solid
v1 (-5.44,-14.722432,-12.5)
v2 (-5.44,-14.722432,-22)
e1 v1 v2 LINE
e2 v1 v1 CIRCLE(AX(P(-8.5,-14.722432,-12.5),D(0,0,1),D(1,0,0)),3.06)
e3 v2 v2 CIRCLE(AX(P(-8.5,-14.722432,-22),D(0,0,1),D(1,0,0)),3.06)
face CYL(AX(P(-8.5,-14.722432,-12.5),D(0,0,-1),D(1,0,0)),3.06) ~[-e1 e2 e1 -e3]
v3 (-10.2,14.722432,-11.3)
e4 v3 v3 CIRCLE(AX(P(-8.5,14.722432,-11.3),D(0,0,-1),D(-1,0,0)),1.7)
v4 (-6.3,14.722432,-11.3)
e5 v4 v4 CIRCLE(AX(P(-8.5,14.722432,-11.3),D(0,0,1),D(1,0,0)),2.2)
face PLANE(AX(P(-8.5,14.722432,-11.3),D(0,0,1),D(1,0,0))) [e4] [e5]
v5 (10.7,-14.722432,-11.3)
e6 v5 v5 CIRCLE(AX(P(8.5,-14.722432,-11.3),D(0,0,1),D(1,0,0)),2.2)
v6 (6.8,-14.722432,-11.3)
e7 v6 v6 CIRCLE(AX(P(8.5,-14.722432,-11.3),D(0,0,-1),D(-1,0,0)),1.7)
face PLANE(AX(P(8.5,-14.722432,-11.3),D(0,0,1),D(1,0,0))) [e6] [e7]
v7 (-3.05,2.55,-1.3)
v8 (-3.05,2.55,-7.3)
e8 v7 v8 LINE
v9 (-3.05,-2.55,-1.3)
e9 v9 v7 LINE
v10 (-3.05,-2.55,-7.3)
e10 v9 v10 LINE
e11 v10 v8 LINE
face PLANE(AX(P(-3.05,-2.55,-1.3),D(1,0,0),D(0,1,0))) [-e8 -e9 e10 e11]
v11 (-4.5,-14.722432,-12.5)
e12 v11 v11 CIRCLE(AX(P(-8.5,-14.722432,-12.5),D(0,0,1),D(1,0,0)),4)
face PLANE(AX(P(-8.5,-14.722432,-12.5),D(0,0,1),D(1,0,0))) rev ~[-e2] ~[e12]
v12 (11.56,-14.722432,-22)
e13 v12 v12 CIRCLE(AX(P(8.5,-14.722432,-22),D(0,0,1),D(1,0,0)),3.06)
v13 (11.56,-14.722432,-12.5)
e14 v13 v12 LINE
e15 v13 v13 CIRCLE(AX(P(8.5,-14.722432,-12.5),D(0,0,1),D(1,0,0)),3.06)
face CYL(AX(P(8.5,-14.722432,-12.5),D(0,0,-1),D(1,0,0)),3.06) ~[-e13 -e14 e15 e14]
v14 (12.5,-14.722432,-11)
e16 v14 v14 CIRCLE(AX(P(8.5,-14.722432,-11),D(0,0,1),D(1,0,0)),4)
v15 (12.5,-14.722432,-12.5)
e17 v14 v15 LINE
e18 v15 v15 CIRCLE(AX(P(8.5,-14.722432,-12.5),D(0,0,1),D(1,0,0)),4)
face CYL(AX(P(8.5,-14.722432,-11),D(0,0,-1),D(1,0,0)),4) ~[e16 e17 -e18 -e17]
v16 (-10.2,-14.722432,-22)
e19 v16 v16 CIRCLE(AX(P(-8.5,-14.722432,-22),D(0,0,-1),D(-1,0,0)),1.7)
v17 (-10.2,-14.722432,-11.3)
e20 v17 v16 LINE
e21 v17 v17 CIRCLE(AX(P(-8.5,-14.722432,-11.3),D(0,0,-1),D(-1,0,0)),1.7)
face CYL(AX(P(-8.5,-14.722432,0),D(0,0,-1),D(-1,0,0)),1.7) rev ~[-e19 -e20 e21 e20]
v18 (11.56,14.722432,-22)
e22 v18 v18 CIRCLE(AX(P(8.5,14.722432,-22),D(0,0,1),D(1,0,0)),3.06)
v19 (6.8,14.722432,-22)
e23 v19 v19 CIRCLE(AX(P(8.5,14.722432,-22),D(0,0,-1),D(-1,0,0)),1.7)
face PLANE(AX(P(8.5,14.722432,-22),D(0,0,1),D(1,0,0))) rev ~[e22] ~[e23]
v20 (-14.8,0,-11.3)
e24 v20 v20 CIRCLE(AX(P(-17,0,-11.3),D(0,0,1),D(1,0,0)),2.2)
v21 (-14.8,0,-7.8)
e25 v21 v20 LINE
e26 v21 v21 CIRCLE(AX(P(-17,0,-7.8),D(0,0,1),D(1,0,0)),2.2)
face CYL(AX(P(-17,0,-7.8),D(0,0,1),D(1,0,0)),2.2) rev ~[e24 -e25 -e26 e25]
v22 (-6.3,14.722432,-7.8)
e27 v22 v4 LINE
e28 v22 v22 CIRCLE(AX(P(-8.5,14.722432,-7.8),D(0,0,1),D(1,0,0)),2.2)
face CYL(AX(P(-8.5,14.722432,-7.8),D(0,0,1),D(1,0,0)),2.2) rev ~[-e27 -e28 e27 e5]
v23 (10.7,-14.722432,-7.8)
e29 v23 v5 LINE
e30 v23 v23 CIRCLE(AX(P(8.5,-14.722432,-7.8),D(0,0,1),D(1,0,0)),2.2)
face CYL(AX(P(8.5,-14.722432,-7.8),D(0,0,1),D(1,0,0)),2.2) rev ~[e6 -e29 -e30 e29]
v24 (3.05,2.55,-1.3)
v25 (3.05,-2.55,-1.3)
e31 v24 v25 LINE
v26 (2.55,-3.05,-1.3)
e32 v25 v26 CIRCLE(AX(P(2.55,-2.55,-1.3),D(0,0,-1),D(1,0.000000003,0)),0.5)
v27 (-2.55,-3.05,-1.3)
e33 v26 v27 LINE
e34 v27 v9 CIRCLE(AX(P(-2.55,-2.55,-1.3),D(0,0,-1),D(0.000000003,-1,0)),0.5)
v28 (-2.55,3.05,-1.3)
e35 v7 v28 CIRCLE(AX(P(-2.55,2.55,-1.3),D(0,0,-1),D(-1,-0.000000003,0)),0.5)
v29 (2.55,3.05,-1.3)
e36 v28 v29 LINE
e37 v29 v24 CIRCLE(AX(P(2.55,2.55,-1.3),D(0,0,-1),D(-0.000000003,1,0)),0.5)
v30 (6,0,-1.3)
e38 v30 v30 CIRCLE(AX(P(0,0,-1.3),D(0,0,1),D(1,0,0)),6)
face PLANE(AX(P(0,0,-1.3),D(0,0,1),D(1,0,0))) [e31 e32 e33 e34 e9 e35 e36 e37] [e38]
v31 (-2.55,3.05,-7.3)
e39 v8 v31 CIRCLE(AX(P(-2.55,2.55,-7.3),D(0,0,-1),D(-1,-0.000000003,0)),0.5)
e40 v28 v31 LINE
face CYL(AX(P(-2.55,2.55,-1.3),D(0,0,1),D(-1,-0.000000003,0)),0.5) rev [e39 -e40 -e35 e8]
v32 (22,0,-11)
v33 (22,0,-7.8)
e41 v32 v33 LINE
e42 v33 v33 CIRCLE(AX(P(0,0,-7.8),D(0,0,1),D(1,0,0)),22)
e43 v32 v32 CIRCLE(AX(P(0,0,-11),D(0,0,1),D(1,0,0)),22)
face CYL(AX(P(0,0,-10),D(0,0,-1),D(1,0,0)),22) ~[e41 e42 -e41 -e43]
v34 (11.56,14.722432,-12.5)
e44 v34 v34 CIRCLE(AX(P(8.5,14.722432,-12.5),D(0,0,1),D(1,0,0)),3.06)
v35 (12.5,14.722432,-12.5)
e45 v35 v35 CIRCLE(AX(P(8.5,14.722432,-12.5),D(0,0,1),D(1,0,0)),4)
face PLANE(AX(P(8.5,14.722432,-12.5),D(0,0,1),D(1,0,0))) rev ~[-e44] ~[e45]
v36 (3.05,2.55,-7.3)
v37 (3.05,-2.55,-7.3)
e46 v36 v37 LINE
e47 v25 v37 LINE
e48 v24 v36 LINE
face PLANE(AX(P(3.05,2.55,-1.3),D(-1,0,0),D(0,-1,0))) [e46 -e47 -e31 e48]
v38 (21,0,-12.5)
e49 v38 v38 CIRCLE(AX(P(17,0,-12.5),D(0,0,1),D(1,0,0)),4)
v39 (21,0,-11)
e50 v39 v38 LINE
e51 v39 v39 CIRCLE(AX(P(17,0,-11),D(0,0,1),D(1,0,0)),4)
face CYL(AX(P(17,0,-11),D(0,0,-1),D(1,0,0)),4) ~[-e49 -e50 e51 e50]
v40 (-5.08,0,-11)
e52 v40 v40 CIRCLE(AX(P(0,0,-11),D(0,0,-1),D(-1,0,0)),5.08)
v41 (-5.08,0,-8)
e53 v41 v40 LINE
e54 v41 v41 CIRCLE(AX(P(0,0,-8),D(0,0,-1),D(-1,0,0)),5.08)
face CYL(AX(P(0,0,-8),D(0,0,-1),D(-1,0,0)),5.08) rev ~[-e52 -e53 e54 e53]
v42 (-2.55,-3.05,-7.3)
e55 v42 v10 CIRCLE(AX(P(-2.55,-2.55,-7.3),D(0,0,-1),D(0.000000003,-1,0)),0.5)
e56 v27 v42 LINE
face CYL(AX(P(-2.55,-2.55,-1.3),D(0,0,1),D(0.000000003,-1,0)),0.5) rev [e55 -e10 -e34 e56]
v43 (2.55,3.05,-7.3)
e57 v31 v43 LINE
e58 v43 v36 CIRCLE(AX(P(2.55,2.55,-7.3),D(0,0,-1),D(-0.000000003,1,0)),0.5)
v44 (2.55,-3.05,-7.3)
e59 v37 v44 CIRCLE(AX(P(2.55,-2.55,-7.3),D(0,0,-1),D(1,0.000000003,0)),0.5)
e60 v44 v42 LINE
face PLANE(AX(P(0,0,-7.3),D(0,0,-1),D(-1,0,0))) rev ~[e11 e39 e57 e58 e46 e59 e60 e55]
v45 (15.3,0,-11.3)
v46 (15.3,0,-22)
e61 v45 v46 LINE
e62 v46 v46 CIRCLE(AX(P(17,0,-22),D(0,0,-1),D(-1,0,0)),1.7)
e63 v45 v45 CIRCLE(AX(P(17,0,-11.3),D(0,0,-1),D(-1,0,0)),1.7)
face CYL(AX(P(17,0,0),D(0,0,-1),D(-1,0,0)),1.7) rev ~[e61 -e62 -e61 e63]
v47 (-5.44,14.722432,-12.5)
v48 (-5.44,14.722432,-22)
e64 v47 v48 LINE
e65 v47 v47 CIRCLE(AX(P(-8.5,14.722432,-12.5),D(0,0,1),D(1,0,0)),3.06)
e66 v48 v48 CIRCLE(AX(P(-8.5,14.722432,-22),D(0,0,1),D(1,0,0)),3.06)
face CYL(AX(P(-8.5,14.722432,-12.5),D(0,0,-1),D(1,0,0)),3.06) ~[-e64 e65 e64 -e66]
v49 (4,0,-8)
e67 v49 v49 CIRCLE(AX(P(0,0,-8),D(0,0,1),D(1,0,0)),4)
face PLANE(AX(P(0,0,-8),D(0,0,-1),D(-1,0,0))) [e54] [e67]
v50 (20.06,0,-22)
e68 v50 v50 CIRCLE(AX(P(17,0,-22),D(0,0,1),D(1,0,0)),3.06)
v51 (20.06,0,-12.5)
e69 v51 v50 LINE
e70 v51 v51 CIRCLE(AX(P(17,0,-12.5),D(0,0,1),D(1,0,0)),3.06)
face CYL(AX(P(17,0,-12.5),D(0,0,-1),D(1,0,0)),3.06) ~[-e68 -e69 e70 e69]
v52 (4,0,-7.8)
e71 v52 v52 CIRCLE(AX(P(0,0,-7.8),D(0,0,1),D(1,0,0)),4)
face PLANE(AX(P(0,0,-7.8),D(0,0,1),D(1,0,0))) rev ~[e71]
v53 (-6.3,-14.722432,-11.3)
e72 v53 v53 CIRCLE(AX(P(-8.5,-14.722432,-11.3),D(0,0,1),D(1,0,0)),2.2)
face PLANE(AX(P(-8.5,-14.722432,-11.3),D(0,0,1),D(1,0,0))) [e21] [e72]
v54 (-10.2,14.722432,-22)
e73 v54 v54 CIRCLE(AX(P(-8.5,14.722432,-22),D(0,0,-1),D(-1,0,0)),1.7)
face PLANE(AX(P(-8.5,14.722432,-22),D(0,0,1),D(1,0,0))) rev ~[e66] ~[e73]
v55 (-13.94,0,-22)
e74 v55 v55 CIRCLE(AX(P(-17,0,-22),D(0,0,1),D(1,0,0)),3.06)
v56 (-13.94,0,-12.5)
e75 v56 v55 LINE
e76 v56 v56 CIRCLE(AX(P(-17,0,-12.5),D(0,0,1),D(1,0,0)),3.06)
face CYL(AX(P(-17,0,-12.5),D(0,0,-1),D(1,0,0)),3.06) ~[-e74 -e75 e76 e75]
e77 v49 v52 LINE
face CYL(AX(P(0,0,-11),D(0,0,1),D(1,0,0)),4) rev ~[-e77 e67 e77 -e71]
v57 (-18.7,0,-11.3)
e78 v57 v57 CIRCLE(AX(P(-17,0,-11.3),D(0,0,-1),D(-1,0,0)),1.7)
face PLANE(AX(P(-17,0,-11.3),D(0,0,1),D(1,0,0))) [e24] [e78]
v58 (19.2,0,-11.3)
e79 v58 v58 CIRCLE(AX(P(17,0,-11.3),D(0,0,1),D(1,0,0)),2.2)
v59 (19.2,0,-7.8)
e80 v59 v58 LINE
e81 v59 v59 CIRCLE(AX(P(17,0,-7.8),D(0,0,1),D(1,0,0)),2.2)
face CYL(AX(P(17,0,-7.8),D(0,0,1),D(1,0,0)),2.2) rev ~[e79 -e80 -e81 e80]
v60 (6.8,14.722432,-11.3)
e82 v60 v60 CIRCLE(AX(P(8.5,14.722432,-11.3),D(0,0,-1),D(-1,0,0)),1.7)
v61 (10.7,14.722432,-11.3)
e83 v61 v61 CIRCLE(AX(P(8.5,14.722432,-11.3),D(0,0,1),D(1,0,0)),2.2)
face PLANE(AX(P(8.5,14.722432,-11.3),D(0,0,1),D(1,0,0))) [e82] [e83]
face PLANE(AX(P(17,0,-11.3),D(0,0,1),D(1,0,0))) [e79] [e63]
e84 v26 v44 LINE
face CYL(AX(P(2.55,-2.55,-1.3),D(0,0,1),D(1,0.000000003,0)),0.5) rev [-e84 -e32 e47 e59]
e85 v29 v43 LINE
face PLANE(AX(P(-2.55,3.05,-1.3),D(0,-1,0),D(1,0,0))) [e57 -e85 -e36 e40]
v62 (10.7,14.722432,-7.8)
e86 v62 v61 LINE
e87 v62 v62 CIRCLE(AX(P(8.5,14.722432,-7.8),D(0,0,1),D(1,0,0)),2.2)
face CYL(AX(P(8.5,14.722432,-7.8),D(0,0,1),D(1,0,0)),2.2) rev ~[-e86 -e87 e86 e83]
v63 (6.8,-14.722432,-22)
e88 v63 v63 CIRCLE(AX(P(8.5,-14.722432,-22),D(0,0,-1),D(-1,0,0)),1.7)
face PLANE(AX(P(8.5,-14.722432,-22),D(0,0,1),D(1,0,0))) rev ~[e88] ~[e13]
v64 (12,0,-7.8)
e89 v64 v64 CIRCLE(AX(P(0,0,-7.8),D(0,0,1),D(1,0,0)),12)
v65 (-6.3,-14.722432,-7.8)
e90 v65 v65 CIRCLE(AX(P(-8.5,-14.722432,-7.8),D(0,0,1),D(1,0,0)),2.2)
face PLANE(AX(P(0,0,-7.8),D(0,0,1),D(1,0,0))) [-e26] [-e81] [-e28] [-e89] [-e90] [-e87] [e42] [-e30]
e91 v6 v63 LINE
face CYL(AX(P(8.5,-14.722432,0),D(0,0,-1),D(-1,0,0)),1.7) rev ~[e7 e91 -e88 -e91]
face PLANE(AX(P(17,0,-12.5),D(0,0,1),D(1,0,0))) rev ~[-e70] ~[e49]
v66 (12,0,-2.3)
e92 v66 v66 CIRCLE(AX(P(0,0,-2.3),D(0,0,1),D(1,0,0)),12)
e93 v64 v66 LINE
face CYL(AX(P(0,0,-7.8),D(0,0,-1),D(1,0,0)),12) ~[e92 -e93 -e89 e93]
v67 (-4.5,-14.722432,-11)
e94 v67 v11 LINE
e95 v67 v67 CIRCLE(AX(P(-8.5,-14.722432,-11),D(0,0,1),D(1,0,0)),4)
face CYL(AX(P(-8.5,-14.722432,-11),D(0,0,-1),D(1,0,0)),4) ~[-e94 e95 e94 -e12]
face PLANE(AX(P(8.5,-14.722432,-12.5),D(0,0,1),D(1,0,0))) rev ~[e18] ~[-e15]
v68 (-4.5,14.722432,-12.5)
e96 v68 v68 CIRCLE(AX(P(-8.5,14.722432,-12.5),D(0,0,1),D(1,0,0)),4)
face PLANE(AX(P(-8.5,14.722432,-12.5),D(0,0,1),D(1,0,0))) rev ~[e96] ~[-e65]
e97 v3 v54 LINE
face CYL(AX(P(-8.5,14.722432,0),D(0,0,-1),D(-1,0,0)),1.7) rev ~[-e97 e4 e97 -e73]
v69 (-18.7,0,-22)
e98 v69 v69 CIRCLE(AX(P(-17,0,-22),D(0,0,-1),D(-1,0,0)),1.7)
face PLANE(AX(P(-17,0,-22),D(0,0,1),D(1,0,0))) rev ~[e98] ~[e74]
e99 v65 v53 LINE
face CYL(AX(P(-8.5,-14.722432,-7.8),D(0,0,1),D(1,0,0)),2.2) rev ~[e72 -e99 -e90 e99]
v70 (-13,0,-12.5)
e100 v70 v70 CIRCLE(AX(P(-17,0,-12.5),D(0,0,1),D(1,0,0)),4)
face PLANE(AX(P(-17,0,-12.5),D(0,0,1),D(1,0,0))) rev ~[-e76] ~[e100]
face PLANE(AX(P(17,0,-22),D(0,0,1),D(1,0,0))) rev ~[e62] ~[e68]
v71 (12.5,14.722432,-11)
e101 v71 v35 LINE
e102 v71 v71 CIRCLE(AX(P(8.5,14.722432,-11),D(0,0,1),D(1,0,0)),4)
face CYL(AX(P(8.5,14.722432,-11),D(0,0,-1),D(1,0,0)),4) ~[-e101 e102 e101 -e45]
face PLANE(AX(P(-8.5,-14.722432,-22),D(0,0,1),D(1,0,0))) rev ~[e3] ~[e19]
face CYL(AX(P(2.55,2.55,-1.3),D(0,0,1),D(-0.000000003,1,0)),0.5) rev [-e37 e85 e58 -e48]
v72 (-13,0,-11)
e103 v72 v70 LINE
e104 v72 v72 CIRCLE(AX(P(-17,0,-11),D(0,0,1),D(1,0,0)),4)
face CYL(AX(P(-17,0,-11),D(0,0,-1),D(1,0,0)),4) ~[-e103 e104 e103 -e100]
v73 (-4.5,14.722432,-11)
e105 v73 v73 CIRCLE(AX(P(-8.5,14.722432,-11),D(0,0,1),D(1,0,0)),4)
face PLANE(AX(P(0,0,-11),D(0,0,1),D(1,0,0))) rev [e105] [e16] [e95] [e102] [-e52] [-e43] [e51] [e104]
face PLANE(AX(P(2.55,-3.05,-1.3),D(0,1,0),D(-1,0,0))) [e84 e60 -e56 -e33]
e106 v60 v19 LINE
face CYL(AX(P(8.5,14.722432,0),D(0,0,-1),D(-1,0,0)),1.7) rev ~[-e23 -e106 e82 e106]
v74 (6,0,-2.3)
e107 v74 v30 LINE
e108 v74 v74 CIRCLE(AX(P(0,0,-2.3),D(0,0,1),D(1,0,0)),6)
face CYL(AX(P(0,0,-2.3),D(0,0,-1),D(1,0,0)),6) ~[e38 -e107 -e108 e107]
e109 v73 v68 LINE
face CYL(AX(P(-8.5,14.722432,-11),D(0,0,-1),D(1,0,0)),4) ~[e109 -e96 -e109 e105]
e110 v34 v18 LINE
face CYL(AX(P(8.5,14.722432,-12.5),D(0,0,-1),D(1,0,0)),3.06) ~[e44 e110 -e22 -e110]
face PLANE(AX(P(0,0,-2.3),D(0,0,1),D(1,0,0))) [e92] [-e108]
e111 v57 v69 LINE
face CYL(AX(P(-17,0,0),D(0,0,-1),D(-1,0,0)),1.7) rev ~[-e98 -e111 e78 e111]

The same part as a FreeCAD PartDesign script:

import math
import FreeCAD as App
import Part
import Sketcher

V = App.Vector


def add_polygon(sketch, points):
    """Adds a closed chain of lines whose ends are joined by coincident constraints."""
    first, n = sketch.GeometryCount, len(points)
    for a, b in zip(points, points[1:] + points[:1]):
        sketch.addGeometry(Part.LineSegment(App.Vector(*a, 0), App.Vector(*b, 0)), False)
    for i in range(n):
        sketch.addConstraint(Sketcher.Constraint("Coincident", first + i, 2, first + (i + 1) % n, 1))

doc = App.newDocument("Part")
params = doc.addObject("Spreadsheet::Sheet", "Params")
for row, (alias, value) in enumerate([
    ("sketch1_width", "22 mm"),
    ("sketch1_height", "1 mm"),
    ("revolution_angle", "360 deg"),
    ("sketch2_diameter", "44 mm"),
    ("pad1_length", "10 mm"),
    ("sketch3_width", "4 mm"),
    ("sketch3_height", "11 mm"),
    ("sketch3_height2", "1.5 mm"),
    ("sketch3_width2", "3.06 mm"),
    ("revolution2_angle", "360 deg"),
    ("sketch4_width", "4 mm"),
    ("sketch4_height", "11 mm"),
    ("sketch4_height2", "1.5 mm"),
    ("sketch4_width2", "3.06 mm"),
    ("revolution3_angle", "360 deg"),
    ("sketch5_width", "4 mm"),
    ("sketch5_height", "11 mm"),
    ("sketch5_height2", "1.5 mm"),
    ("sketch5_width2", "3.06 mm"),
    ("revolution4_angle", "360 deg"),
    ("sketch6_width", "4 mm"),
    ("sketch6_height", "11 mm"),
    ("sketch6_height2", "1.5 mm"),
    ("sketch6_width2", "3.06 mm"),
    ("revolution5_angle", "360 deg"),
    ("sketch7_width", "4 mm"),
    ("sketch7_height", "11 mm"),
    ("sketch7_height2", "1.5 mm"),
    ("sketch7_width2", "3.06 mm"),
    ("revolution6_angle", "360 deg"),
    ("sketch8_width", "4 mm"),
    ("sketch8_height", "11 mm"),
    ("sketch8_height2", "1.5 mm"),
    ("sketch8_width2", "3.06 mm"),
    ("revolution7_angle", "360 deg"),
    ("sketch9_diameter", "3.4 mm"),
    ("hole_diameter", "3.4 mm"),
    ("hole_depth", "11 mm"),
    ("hole_cbore_diameter", "4.5 mm"),
    ("hole_cbore_depth", "6 mm"),
    ("sketch10_diameter", "8 mm"),
    ("hole2_diameter", "8 mm"),
    ("hole2_depth", "5 mm"),
    ("hole2_cbore_diameter", "10.16 mm"),
    ("hole2_cbore_depth", "3 mm"),
    ("sketch11_diameter", "3.4 mm"),
    ("hole3_diameter", "3.4 mm"),
    ("hole3_depth", "22 mm"),
    ("hole3_cbore_diameter", "6.1 mm"),
    ("hole3_cbore_depth", "3 mm"),
    ("sketch12_diameter", "4.8 mm"),
    ("pad2_length", "11 mm"),
    ("sketch13_diameter", "44 mm"),
    ("pocket1_length", "7.8 mm"),
    ("sketch14_diameter", "24 mm"),
    ("pad3_length", "5.5 mm"),
    ("sketch15_diameter", "12 mm"),
    ("pad4_length", "1 mm"),
    ("sketch16_radius", "0.5 mm"),
    ("sketch16_width", "5.1 mm"),
    ("pocket2_length", "6 mm"),
    ("sketch17_diameter", "4.4 mm"),
    ("pocket3_length", "3.5 mm"),
], start=1):
    params.set(f"A{row}", alias)
    params.set(f"B{row}", "=" + value)
    params.setAlias(f"B{row}", alias)

body = doc.addObject("PartDesign::Body", "Body")

sketch1 = body.newObject("Sketcher::SketchObject", "Sketch")
sketch1.AttachmentSupport = (doc.getObject("XZ_Plane"), [""])
sketch1.MapMode = "FlatFace"
add_polygon(sketch1, [(0, -11), (0, -10), (22, -10), (22, -11)])
sketch1.addConstraint(Sketcher.Constraint("Vertical", 0))
sketch1.addConstraint(Sketcher.Constraint("Horizontal", 1))
sketch1.addConstraint(Sketcher.Constraint("Vertical", 2))
sketch1.addConstraint(Sketcher.Constraint("Horizontal", 3))
sketch1.addConstraint(Sketcher.Constraint("PointOnObject", 0, 2, -2))
sketch1.addConstraint(Sketcher.Constraint("DistanceX", 1, 1, 1, 2, 22.0))
sketch1.addConstraint(Sketcher.Constraint("DistanceY", 0, 1, 0, 2, 1.0))
sketch1.addConstraint(Sketcher.Constraint("DistanceY", 0, 2, -1, 1, 10.0))
sketch1.setExpression("Constraints[9]", "Params.sketch1_width")
sketch1.setExpression("Constraints[10]", "Params.sketch1_height")
revolution = body.newObject("PartDesign::Revolution", "Revolution")
revolution.Profile = sketch1
revolution.ReferenceAxis = (sketch1, ["V_Axis"])
revolution.setExpression("Angle", "Params.revolution_angle")

sketch2 = body.newObject("Sketcher::SketchObject", "Sketch001")
sketch2.AttachmentSupport = (doc.getObject("XY_Plane"), [""])
sketch2.MapMode = "FlatFace"
sketch2.AttachmentOffset = App.Placement(V(0, 0, -10), App.Rotation())
sketch2.addGeometry(Part.Circle(V(0, 0, 0), V(0, 0, 1), 22), False)
sketch2.addConstraint(Sketcher.Constraint("Coincident", 0, 3, -1, 1))
sketch2.addConstraint(Sketcher.Constraint("Diameter", 0, 44.0))
sketch2.setExpression("Constraints[1]", "Params.sketch2_diameter")
pad1 = body.newObject("PartDesign::Pad", "Pad")
pad1.Profile = sketch2
pad1.setExpression("Length", "Params.pad1_length")

sketch3 = body.newObject("Sketcher::SketchObject", "Sketch002")
sketch3.AttachmentSupport = (doc.getObject("XZ_Plane"), [""])
sketch3.MapMode = "FlatFace"
sketch3.AttachmentOffset = App.Placement(V(0, 0, 14.722432), App.Rotation())
add_polygon(sketch3, [(11.6, -22), (8.5, -22), (8.5, -11), (12.5, -11), (12.5, -12.5), (11.6, -12.5)])
sketch3.addGeometry(Part.LineSegment(V(8.5, -22, 0), V(8.5, -11, 0)), True)
sketch3.addConstraint(Sketcher.Constraint("Horizontal", 0))
sketch3.addConstraint(Sketcher.Constraint("Vertical", 1))
sketch3.addConstraint(Sketcher.Constraint("Horizontal", 2))
sketch3.addConstraint(Sketcher.Constraint("Vertical", 3))
sketch3.addConstraint(Sketcher.Constraint("Horizontal", 4))
sketch3.addConstraint(Sketcher.Constraint("Vertical", 5))
sketch3.addConstraint(Sketcher.Constraint("Vertical", 6))
sketch3.addConstraint(Sketcher.Constraint("Coincident", 6, 1, 0, 2))
sketch3.addConstraint(Sketcher.Constraint("Horizontal", 2, 2, 6, 2))
sketch3.addConstraint(Sketcher.Constraint("DistanceX", 2, 1, 2, 2, 4.0))
sketch3.addConstraint(Sketcher.Constraint("DistanceY", 1, 1, 1, 2, 11.0))
sketch3.addConstraint(Sketcher.Constraint("DistanceY", 3, 2, 3, 1, 1.5))
sketch3.addConstraint(Sketcher.Constraint("DistanceY", 0, 2, -1, 1, 22.0))
sketch3.addConstraint(Sketcher.Constraint("DistanceX", 0, 2, 0, 1, 3.06))
sketch3.addConstraint(Sketcher.Constraint("DistanceX", -1, 1, 0, 2, 8.5))
sketch3.setExpression("Constraints[15]", "Params.sketch3_width")
sketch3.setExpression("Constraints[16]", "Params.sketch3_height")
sketch3.setExpression("Constraints[17]", "Params.sketch3_height2")
sketch3.setExpression("Constraints[19]", "Params.sketch3_width2")
revolution2 = body.newObject("PartDesign::Revolution", "Revolution001")
revolution2.Profile = sketch3
revolution2.ReferenceAxis = (sketch3, ["Axis0"])
revolution2.setExpression("Angle", "Params.revolution2_angle")

sketch4 = body.newObject("Sketcher::SketchObject", "Sketch003")
sketch4.AttachmentSupport = (doc.getObject("XZ_Plane"), [""])
sketch4.MapMode = "FlatFace"
sketch4.AttachmentOffset = App.Placement(V(0, 0, 14.722432), App.Rotation())
add_polygon(sketch4, [(-5.4, -22), (-8.5, -22), (-8.5, -11), (-4.5, -11), (-4.5, -12.5), (-5.4, -12.5)])
sketch4.addGeometry(Part.LineSegment(V(-8.5, -22, 0), V(-8.5, -11, 0)), True)
sketch4.addConstraint(Sketcher.Constraint("Horizontal", 0))
sketch4.addConstraint(Sketcher.Constraint("Vertical", 1))
sketch4.addConstraint(Sketcher.Constraint("Horizontal", 2))
sketch4.addConstraint(Sketcher.Constraint("Vertical", 3))
sketch4.addConstraint(Sketcher.Constraint("Horizontal", 4))
sketch4.addConstraint(Sketcher.Constraint("Vertical", 5))
sketch4.addConstraint(Sketcher.Constraint("Vertical", 6))
sketch4.addConstraint(Sketcher.Constraint("Coincident", 6, 1, 0, 2))
sketch4.addConstraint(Sketcher.Constraint("Horizontal", 2, 2, 6, 2))
sketch4.addConstraint(Sketcher.Constraint("DistanceX", 2, 1, 2, 2, 4.0))
sketch4.addConstraint(Sketcher.Constraint("DistanceY", 1, 1, 1, 2, 11.0))
sketch4.addConstraint(Sketcher.Constraint("DistanceY", 3, 2, 3, 1, 1.5))
sketch4.addConstraint(Sketcher.Constraint("DistanceY", 0, 2, -1, 1, 22.0))
sketch4.addConstraint(Sketcher.Constraint("DistanceX", 0, 2, 0, 1, 3.06))
sketch4.addConstraint(Sketcher.Constraint("DistanceX", 0, 2, -1, 1, 8.5))
sketch4.setExpression("Constraints[15]", "Params.sketch4_width")
sketch4.setExpression("Constraints[16]", "Params.sketch4_height")
sketch4.setExpression("Constraints[17]", "Params.sketch4_height2")
sketch4.setExpression("Constraints[19]", "Params.sketch4_width2")
revolution3 = body.newObject("PartDesign::Revolution", "Revolution002")
revolution3.Profile = sketch4
revolution3.ReferenceAxis = (sketch4, ["Axis0"])
revolution3.setExpression("Angle", "Params.revolution3_angle")

sketch5 = body.newObject("Sketcher::SketchObject", "Sketch004")
sketch5.AttachmentSupport = (doc.getObject("XZ_Plane"), [""])
sketch5.MapMode = "FlatFace"
add_polygon(sketch5, [(-13.9, -22), (-17, -22), (-17, -11), (-13, -11), (-13, -12.5), (-13.9, -12.5)])
sketch5.addGeometry(Part.LineSegment(V(-17, -22, 0), V(-17, -11, 0)), True)
sketch5.addConstraint(Sketcher.Constraint("Horizontal", 0))
sketch5.addConstraint(Sketcher.Constraint("Vertical", 1))
sketch5.addConstraint(Sketcher.Constraint("Horizontal", 2))
sketch5.addConstraint(Sketcher.Constraint("Vertical", 3))
sketch5.addConstraint(Sketcher.Constraint("Horizontal", 4))
sketch5.addConstraint(Sketcher.Constraint("Vertical", 5))
sketch5.addConstraint(Sketcher.Constraint("Vertical", 6))
sketch5.addConstraint(Sketcher.Constraint("Coincident", 6, 1, 0, 2))
sketch5.addConstraint(Sketcher.Constraint("Horizontal", 2, 2, 6, 2))
sketch5.addConstraint(Sketcher.Constraint("DistanceX", 2, 1, 2, 2, 4.0))
sketch5.addConstraint(Sketcher.Constraint("DistanceY", 1, 1, 1, 2, 11.0))
sketch5.addConstraint(Sketcher.Constraint("DistanceY", 3, 2, 3, 1, 1.5))
sketch5.addConstraint(Sketcher.Constraint("DistanceX", 0, 2, -1, 1, 17.0))
sketch5.addConstraint(Sketcher.Constraint("DistanceY", 0, 2, -1, 1, 22.0))
sketch5.addConstraint(Sketcher.Constraint("DistanceX", 0, 2, 0, 1, 3.06))
sketch5.setExpression("Constraints[15]", "Params.sketch5_width")
sketch5.setExpression("Constraints[16]", "Params.sketch5_height")
sketch5.setExpression("Constraints[17]", "Params.sketch5_height2")
sketch5.setExpression("Constraints[20]", "Params.sketch5_width2")
revolution4 = body.newObject("PartDesign::Revolution", "Revolution003")
revolution4.Profile = sketch5
revolution4.ReferenceAxis = (sketch5, ["Axis0"])
revolution4.setExpression("Angle", "Params.revolution4_angle")

sketch6 = body.newObject("Sketcher::SketchObject", "Sketch005")
sketch6.AttachmentSupport = (doc.getObject("XZ_Plane"), [""])
sketch6.MapMode = "FlatFace"
sketch6.AttachmentOffset = App.Placement(V(0, 0, -14.722432), App.Rotation())
add_polygon(sketch6, [(-5.4, -22), (-8.5, -22), (-8.5, -11), (-4.5, -11), (-4.5, -12.5), (-5.4, -12.5)])
sketch6.addGeometry(Part.LineSegment(V(-8.5, -22, 0), V(-8.5, -11, 0)), True)
sketch6.addConstraint(Sketcher.Constraint("Horizontal", 0))
sketch6.addConstraint(Sketcher.Constraint("Vertical", 1))
sketch6.addConstraint(Sketcher.Constraint("Horizontal", 2))
sketch6.addConstraint(Sketcher.Constraint("Vertical", 3))
sketch6.addConstraint(Sketcher.Constraint("Horizontal", 4))
sketch6.addConstraint(Sketcher.Constraint("Vertical", 5))
sketch6.addConstraint(Sketcher.Constraint("Vertical", 6))
sketch6.addConstraint(Sketcher.Constraint("Coincident", 6, 1, 0, 2))
sketch6.addConstraint(Sketcher.Constraint("Horizontal", 2, 2, 6, 2))
sketch6.addConstraint(Sketcher.Constraint("DistanceX", 2, 1, 2, 2, 4.0))
sketch6.addConstraint(Sketcher.Constraint("DistanceY", 1, 1, 1, 2, 11.0))
sketch6.addConstraint(Sketcher.Constraint("DistanceY", 3, 2, 3, 1, 1.5))
sketch6.addConstraint(Sketcher.Constraint("DistanceY", 0, 2, -1, 1, 22.0))
sketch6.addConstraint(Sketcher.Constraint("DistanceX", 0, 2, 0, 1, 3.06))
sketch6.addConstraint(Sketcher.Constraint("DistanceX", 0, 2, -1, 1, 8.5))
sketch6.setExpression("Constraints[15]", "Params.sketch6_width")
sketch6.setExpression("Constraints[16]", "Params.sketch6_height")
sketch6.setExpression("Constraints[17]", "Params.sketch6_height2")
sketch6.setExpression("Constraints[19]", "Params.sketch6_width2")
revolution5 = body.newObject("PartDesign::Revolution", "Revolution004")
revolution5.Profile = sketch6
revolution5.ReferenceAxis = (sketch6, ["Axis0"])
revolution5.setExpression("Angle", "Params.revolution5_angle")

sketch7 = body.newObject("Sketcher::SketchObject", "Sketch006")
sketch7.AttachmentSupport = (doc.getObject("XZ_Plane"), [""])
sketch7.MapMode = "FlatFace"
sketch7.AttachmentOffset = App.Placement(V(0, 0, -14.722432), App.Rotation())
add_polygon(sketch7, [(11.6, -22), (8.5, -22), (8.5, -11), (12.5, -11), (12.5, -12.5), (11.6, -12.5)])
sketch7.addGeometry(Part.LineSegment(V(8.5, -22, 0), V(8.5, -11, 0)), True)
sketch7.addConstraint(Sketcher.Constraint("Horizontal", 0))
sketch7.addConstraint(Sketcher.Constraint("Vertical", 1))
sketch7.addConstraint(Sketcher.Constraint("Horizontal", 2))
sketch7.addConstraint(Sketcher.Constraint("Vertical", 3))
sketch7.addConstraint(Sketcher.Constraint("Horizontal", 4))
sketch7.addConstraint(Sketcher.Constraint("Vertical", 5))
sketch7.addConstraint(Sketcher.Constraint("Vertical", 6))
sketch7.addConstraint(Sketcher.Constraint("Coincident", 6, 1, 0, 2))
sketch7.addConstraint(Sketcher.Constraint("Horizontal", 2, 2, 6, 2))
sketch7.addConstraint(Sketcher.Constraint("DistanceX", 2, 1, 2, 2, 4.0))
sketch7.addConstraint(Sketcher.Constraint("DistanceY", 1, 1, 1, 2, 11.0))
sketch7.addConstraint(Sketcher.Constraint("DistanceY", 3, 2, 3, 1, 1.5))
sketch7.addConstraint(Sketcher.Constraint("DistanceY", 0, 2, -1, 1, 22.0))
sketch7.addConstraint(Sketcher.Constraint("DistanceX", 0, 2, 0, 1, 3.06))
sketch7.addConstraint(Sketcher.Constraint("DistanceX", -1, 1, 0, 2, 8.5))
sketch7.setExpression("Constraints[15]", "Params.sketch7_width")
sketch7.setExpression("Constraints[16]", "Params.sketch7_height")
sketch7.setExpression("Constraints[17]", "Params.sketch7_height2")
sketch7.setExpression("Constraints[19]", "Params.sketch7_width2")
revolution6 = body.newObject("PartDesign::Revolution", "Revolution005")
revolution6.Profile = sketch7
revolution6.ReferenceAxis = (sketch7, ["Axis0"])
revolution6.setExpression("Angle", "Params.revolution6_angle")

sketch8 = body.newObject("Sketcher::SketchObject", "Sketch007")
sketch8.AttachmentSupport = (doc.getObject("XZ_Plane"), [""])
sketch8.MapMode = "FlatFace"
add_polygon(sketch8, [(20.1, -22), (17, -22), (17, -11), (21, -11), (21, -12.5), (20.1, -12.5)])
sketch8.addGeometry(Part.LineSegment(V(17, -22, 0), V(17, -11, 0)), True)
sketch8.addConstraint(Sketcher.Constraint("Horizontal", 0))
sketch8.addConstraint(Sketcher.Constraint("Vertical", 1))
sketch8.addConstraint(Sketcher.Constraint("Horizontal", 2))
sketch8.addConstraint(Sketcher.Constraint("Vertical", 3))
sketch8.addConstraint(Sketcher.Constraint("Horizontal", 4))
sketch8.addConstraint(Sketcher.Constraint("Vertical", 5))
sketch8.addConstraint(Sketcher.Constraint("Vertical", 6))
sketch8.addConstraint(Sketcher.Constraint("Coincident", 6, 1, 0, 2))
sketch8.addConstraint(Sketcher.Constraint("Horizontal", 2, 2, 6, 2))
sketch8.addConstraint(Sketcher.Constraint("DistanceX", 2, 1, 2, 2, 4.0))
sketch8.addConstraint(Sketcher.Constraint("DistanceY", 1, 1, 1, 2, 11.0))
sketch8.addConstraint(Sketcher.Constraint("DistanceY", 3, 2, 3, 1, 1.5))
sketch8.addConstraint(Sketcher.Constraint("DistanceX", -1, 1, 0, 2, 17.0))
sketch8.addConstraint(Sketcher.Constraint("DistanceY", 0, 2, -1, 1, 22.0))
sketch8.addConstraint(Sketcher.Constraint("DistanceX", 0, 2, 0, 1, 3.06))
sketch8.setExpression("Constraints[15]", "Params.sketch8_width")
sketch8.setExpression("Constraints[16]", "Params.sketch8_height")
sketch8.setExpression("Constraints[17]", "Params.sketch8_height2")
sketch8.setExpression("Constraints[20]", "Params.sketch8_width2")
revolution7 = body.newObject("PartDesign::Revolution", "Revolution006")
revolution7.Profile = sketch8
revolution7.ReferenceAxis = (sketch8, ["Axis0"])
revolution7.setExpression("Angle", "Params.revolution7_angle")

sketch9 = body.newObject("Sketcher::SketchObject", "Sketch008")
sketch9.AttachmentSupport = (doc.getObject("XY_Plane"), [""])
sketch9.MapMode = "FlatFace"
sketch9.AttachmentOffset = App.Placement(V(0, 0, -11), App.Rotation())
sketch9.addGeometry(Part.Circle(V(-15.6, 9, 0), V(0, 0, 1), 1.7), False)
sketch9.addGeometry(Part.Circle(V(0, 18, 0), V(0, 0, 1), 1.7), False)
sketch9.addGeometry(Part.Circle(V(15.6, 9, 0), V(0, 0, 1), 1.7), False)
sketch9.addGeometry(Part.Circle(V(15.6, -9, 0), V(0, 0, 1), 1.7), False)
sketch9.addGeometry(Part.Circle(V(0, -18, 0), V(0, 0, 1), 1.7), False)
sketch9.addGeometry(Part.Circle(V(-15.6, -9, 0), V(0, 0, 1), 1.7), False)
sketch9.addConstraint(Sketcher.Constraint("Equal", 0, 1))
sketch9.addConstraint(Sketcher.Constraint("Equal", 1, 2))
sketch9.addConstraint(Sketcher.Constraint("Equal", 2, 3))
sketch9.addConstraint(Sketcher.Constraint("Equal", 3, 4))
sketch9.addConstraint(Sketcher.Constraint("Equal", 4, 5))
sketch9.addConstraint(Sketcher.Constraint("Symmetric", 0, 3, 3, 3, -1, 1))
sketch9.addConstraint(Sketcher.Constraint("Symmetric", 1, 3, 4, 3, -1, 1))
sketch9.addConstraint(Sketcher.Constraint("Symmetric", 2, 3, 5, 3, -1, 1))
sketch9.addConstraint(Sketcher.Constraint("Symmetric", 0, 3, 2, 3, -2))
sketch9.addConstraint(Sketcher.Constraint("PointOnObject", 1, 3, -2))
sketch9.addConstraint(Sketcher.Constraint("Diameter", 0, 3.4))
sketch9.addConstraint(Sketcher.Constraint("DistanceY", -1, 1, 0, 3, 9.0))
sketch9.addConstraint(Sketcher.Constraint("DistanceY", -1, 1, 1, 3, 18.0))
sketch9.addConstraint(Sketcher.Constraint("DistanceX", 0, 3, -1, 1, 15.588457))
sketch9.setExpression("Constraints[10]", "Params.sketch9_diameter")
doc.recompute()
hole = body.newObject("PartDesign::Hole", "Hole")
hole.Profile = sketch9
hole.ThreadType = "None"
hole.setExpression("Diameter", "Params.hole_diameter")
hole.DepthType = "Dimension"
hole.setExpression("Depth", "Params.hole_depth")
hole.DrillPoint = "Flat"
hole.HoleCutType = "Counterbore"
hole.setExpression("HoleCutDiameter", "Params.hole_cbore_diameter")
hole.setExpression("HoleCutDepth", "Params.hole_cbore_depth")
hole.Reversed = True

sketch10 = body.newObject("Sketcher::SketchObject", "Sketch009")
sketch10.AttachmentSupport = (doc.getObject("XY_Plane"), [""])
sketch10.MapMode = "FlatFace"
sketch10.AttachmentOffset = App.Placement(V(0, 0, -11), App.Rotation())
sketch10.addGeometry(Part.Circle(V(0, 0, 0), V(0, 0, 1), 4), False)
sketch10.addConstraint(Sketcher.Constraint("Coincident", 0, 3, -1, 1))
sketch10.addConstraint(Sketcher.Constraint("Diameter", 0, 8.0))
sketch10.setExpression("Constraints[1]", "Params.sketch10_diameter")
doc.recompute()
hole2 = body.newObject("PartDesign::Hole", "Hole001")
hole2.Profile = sketch10
hole2.ThreadType = "None"
hole2.setExpression("Diameter", "Params.hole2_diameter")
hole2.DepthType = "Dimension"
hole2.setExpression("Depth", "Params.hole2_depth")
hole2.DrillPoint = "Flat"
hole2.HoleCutType = "Counterbore"
hole2.setExpression("HoleCutDiameter", "Params.hole2_cbore_diameter")
hole2.setExpression("HoleCutDepth", "Params.hole2_cbore_depth")
hole2.Reversed = True

sketch11 = body.newObject("Sketcher::SketchObject", "Sketch010")
sketch11.AttachmentSupport = (doc.getObject("XY_Plane"), [""])
sketch11.MapMode = "FlatFace"
sketch11.addGeometry(Part.Circle(V(8.5, -14.7, 0), V(0, 0, 1), 1.7), False)
sketch11.addGeometry(Part.Circle(V(-8.5, -14.7, 0), V(0, 0, 1), 1.7), False)
sketch11.addGeometry(Part.Circle(V(-17, 0, 0), V(0, 0, 1), 1.7), False)
sketch11.addGeometry(Part.Circle(V(-8.5, 14.7, 0), V(0, 0, 1), 1.7), False)
sketch11.addGeometry(Part.Circle(V(8.5, 14.7, 0), V(0, 0, 1), 1.7), False)
sketch11.addGeometry(Part.Circle(V(17, 0, 0), V(0, 0, 1), 1.7), False)
sketch11.addConstraint(Sketcher.Constraint("Equal", 0, 1))
sketch11.addConstraint(Sketcher.Constraint("Equal", 1, 2))
sketch11.addConstraint(Sketcher.Constraint("Equal", 2, 3))
sketch11.addConstraint(Sketcher.Constraint("Equal", 3, 4))
sketch11.addConstraint(Sketcher.Constraint("Equal", 4, 5))
sketch11.addConstraint(Sketcher.Constraint("Symmetric", 0, 3, 3, 3, -1, 1))
sketch11.addConstraint(Sketcher.Constraint("Symmetric", 1, 3, 4, 3, -1, 1))
sketch11.addConstraint(Sketcher.Constraint("Symmetric", 2, 3, 5, 3, -1, 1))
sketch11.addConstraint(Sketcher.Constraint("Symmetric", 0, 3, 1, 3, -2))
sketch11.addConstraint(Sketcher.Constraint("PointOnObject", 2, 3, -1))
sketch11.addConstraint(Sketcher.Constraint("Diameter", 0, 3.4))
sketch11.addConstraint(Sketcher.Constraint("DistanceX", 2, 3, -1, 1, 17.0))
sketch11.addConstraint(Sketcher.Constraint("DistanceX", 1, 3, 0, 3, 17.0))
sketch11.addConstraint(Sketcher.Constraint("DistanceY", 0, 3, -1, 1, 14.722432))
sketch11.setExpression("Constraints[10]", "Params.sketch11_diameter")
doc.recompute()
hole3 = body.newObject("PartDesign::Hole", "Hole002")
hole3.Profile = sketch11
hole3.ThreadType = "None"
hole3.setExpression("Diameter", "Params.hole3_diameter")
hole3.DepthType = "Dimension"
hole3.setExpression("Depth", "Params.hole3_depth")
hole3.DrillPoint = "Flat"
hole3.HoleCutType = "Counterbore"
hole3.setExpression("HoleCutDiameter", "Params.hole3_cbore_diameter")
hole3.setExpression("HoleCutDepth", "Params.hole3_cbore_depth")

sketch12 = body.newObject("Sketcher::SketchObject", "Sketch011")
sketch12.AttachmentSupport = (doc.getObject("XY_Plane"), [""])
sketch12.MapMode = "FlatFace"
sketch12.addGeometry(Part.Circle(V(-15.6, 9, 0), V(0, 0, 1), 2.4), False)
sketch12.addGeometry(Part.Circle(V(0, 18, 0), V(0, 0, 1), 2.4), False)
sketch12.addGeometry(Part.Circle(V(15.6, 9, 0), V(0, 0, 1), 2.4), False)
sketch12.addGeometry(Part.Circle(V(15.6, -9, 0), V(0, 0, 1), 2.4), False)
sketch12.addGeometry(Part.Circle(V(0, -18, 0), V(0, 0, 1), 2.4), False)
sketch12.addGeometry(Part.Circle(V(-15.6, -9, 0), V(0, 0, 1), 2.4), False)
sketch12.addConstraint(Sketcher.Constraint("Equal", 0, 1))
sketch12.addConstraint(Sketcher.Constraint("Equal", 1, 2))
sketch12.addConstraint(Sketcher.Constraint("Equal", 2, 3))
sketch12.addConstraint(Sketcher.Constraint("Equal", 3, 4))
sketch12.addConstraint(Sketcher.Constraint("Equal", 4, 5))
sketch12.addConstraint(Sketcher.Constraint("Symmetric", 0, 3, 3, 3, -1, 1))
sketch12.addConstraint(Sketcher.Constraint("Symmetric", 1, 3, 4, 3, -1, 1))
sketch12.addConstraint(Sketcher.Constraint("Symmetric", 2, 3, 5, 3, -1, 1))
sketch12.addConstraint(Sketcher.Constraint("Symmetric", 0, 3, 2, 3, -2))
sketch12.addConstraint(Sketcher.Constraint("PointOnObject", 1, 3, -2))
sketch12.addConstraint(Sketcher.Constraint("Diameter", 0, 4.8))
sketch12.addConstraint(Sketcher.Constraint("DistanceY", -1, 1, 0, 3, 9.0))
sketch12.addConstraint(Sketcher.Constraint("DistanceY", -1, 1, 1, 3, 18.0))
sketch12.addConstraint(Sketcher.Constraint("DistanceX", 0, 3, -1, 1, 15.588457))
sketch12.setExpression("Constraints[10]", "Params.sketch12_diameter")
pad2 = body.newObject("PartDesign::Pad", "Pad001")
pad2.Profile = sketch12
pad2.setExpression("Length", "Params.pad2_length")
pad2.Reversed = True

sketch13 = body.newObject("Sketcher::SketchObject", "Sketch012")
sketch13.AttachmentSupport = (doc.getObject("XY_Plane"), [""])
sketch13.MapMode = "FlatFace"
sketch13.addGeometry(Part.Circle(V(0, 0, 0), V(0, 0, 1), 22), False)
sketch13.addConstraint(Sketcher.Constraint("Coincident", 0, 3, -1, 1))
sketch13.addConstraint(Sketcher.Constraint("Diameter", 0, 44.0))
sketch13.setExpression("Constraints[1]", "Params.sketch13_diameter")
pocket1 = body.newObject("PartDesign::Pocket", "Pocket")
pocket1.Profile = sketch13
pocket1.setExpression("Length", "Params.pocket1_length")

sketch14 = body.newObject("Sketcher::SketchObject", "Sketch013")
sketch14.AttachmentSupport = (doc.getObject("XY_Plane"), [""])
sketch14.MapMode = "FlatFace"
sketch14.AttachmentOffset = App.Placement(V(0, 0, -7.8), App.Rotation())
sketch14.addGeometry(Part.Circle(V(0, 0, 0), V(0, 0, 1), 12), False)
sketch14.addConstraint(Sketcher.Constraint("Coincident", 0, 3, -1, 1))
sketch14.addConstraint(Sketcher.Constraint("Diameter", 0, 24.0))
sketch14.setExpression("Constraints[1]", "Params.sketch14_diameter")
pad3 = body.newObject("PartDesign::Pad", "Pad002")
pad3.Profile = sketch14
pad3.setExpression("Length", "Params.pad3_length")

sketch15 = body.newObject("Sketcher::SketchObject", "Sketch014")
sketch15.AttachmentSupport = (doc.getObject("XY_Plane"), [""])
sketch15.MapMode = "FlatFace"
sketch15.AttachmentOffset = App.Placement(V(0, 0, -2.3), App.Rotation())
sketch15.addGeometry(Part.Circle(V(0, 0, 0), V(0, 0, 1), 6), False)
sketch15.addConstraint(Sketcher.Constraint("Coincident", 0, 3, -1, 1))
sketch15.addConstraint(Sketcher.Constraint("Diameter", 0, 12.0))
sketch15.setExpression("Constraints[1]", "Params.sketch15_diameter")
pad4 = body.newObject("PartDesign::Pad", "Pad003")
pad4.Profile = sketch15
pad4.setExpression("Length", "Params.pad4_length")

sketch16 = body.newObject("Sketcher::SketchObject", "Sketch015")
sketch16.AttachmentSupport = (doc.getObject("XY_Plane"), [""])
sketch16.MapMode = "FlatFace"
sketch16.AttachmentOffset = App.Placement(V(0, 0, -1.3), App.Rotation())
sketch16.addGeometry(Part.LineSegment(V(2.55, 3.05, 0), V(-2.55, 3.05, 0)), False)
sketch16.addGeometry(Part.ArcOfCircle(Part.Circle(V(-2.55, 2.55, 0), V(0, 0, 1), 0.5), math.radians(90), math.radians(180)), False)
sketch16.addGeometry(Part.LineSegment(V(-3.05, 2.55, 0), V(-3.05, -2.55, 0)), False)
sketch16.addGeometry(Part.ArcOfCircle(Part.Circle(V(-2.55, -2.55, 0), V(0, 0, 1), 0.5), math.radians(180), math.radians(270)), False)
sketch16.addGeometry(Part.LineSegment(V(-2.55, -3.05, 0), V(2.55, -3.05, 0)), False)
sketch16.addGeometry(Part.ArcOfCircle(Part.Circle(V(2.55, -2.55, 0), V(0, 0, 1), 0.5), math.radians(-90), math.radians(0)), False)
sketch16.addGeometry(Part.LineSegment(V(3.05, -2.55, 0), V(3.05, 2.55, 0)), False)
sketch16.addGeometry(Part.ArcOfCircle(Part.Circle(V(2.55, 2.55, 0), V(0, 0, 1), 0.5), math.radians(0), math.radians(90)), False)
sketch16.addConstraint(Sketcher.Constraint("Tangent", 0, 2, 1, 1))
sketch16.addConstraint(Sketcher.Constraint("Tangent", 1, 2, 2, 1))
sketch16.addConstraint(Sketcher.Constraint("Tangent", 2, 2, 3, 1))
sketch16.addConstraint(Sketcher.Constraint("Tangent", 3, 2, 4, 1))
sketch16.addConstraint(Sketcher.Constraint("Tangent", 4, 2, 5, 1))
sketch16.addConstraint(Sketcher.Constraint("Tangent", 5, 2, 6, 1))
sketch16.addConstraint(Sketcher.Constraint("Tangent", 6, 2, 7, 1))
sketch16.addConstraint(Sketcher.Constraint("Tangent", 7, 2, 0, 1))
sketch16.addConstraint(Sketcher.Constraint("Horizontal", 0))
sketch16.addConstraint(Sketcher.Constraint("Vertical", 2))
sketch16.addConstraint(Sketcher.Constraint("Horizontal", 4))
sketch16.addConstraint(Sketcher.Constraint("Vertical", 6))
sketch16.addConstraint(Sketcher.Constraint("Equal", 1, 3))
sketch16.addConstraint(Sketcher.Constraint("Equal", 3, 5))
sketch16.addConstraint(Sketcher.Constraint("Equal", 5, 7))
sketch16.addConstraint(Sketcher.Constraint("Symmetric", 1, 3, 5, 3, -1, 1))
sketch16.addConstraint(Sketcher.Constraint("Equal", 4, 2))
sketch16.addConstraint(Sketcher.Constraint("Radius", 1, 0.5))
sketch16.addConstraint(Sketcher.Constraint("DistanceX", 0, 2, 0, 1, 5.1))
sketch16.setExpression("Constraints[17]", "Params.sketch16_radius")
sketch16.setExpression("Constraints[18]", "Params.sketch16_width")
pocket2 = body.newObject("PartDesign::Pocket", "Pocket001")
pocket2.Profile = sketch16
pocket2.setExpression("Length", "Params.pocket2_length")

sketch17 = body.newObject("Sketcher::SketchObject", "Sketch016")
sketch17.AttachmentSupport = (doc.getObject("XY_Plane"), [""])
sketch17.MapMode = "FlatFace"
sketch17.AttachmentOffset = App.Placement(V(0, 0, -7.8), App.Rotation())
sketch17.addGeometry(Part.Circle(V(-8.5, -14.7, 0), V(0, 0, 1), 2.2), False)
sketch17.addGeometry(Part.Circle(V(-17, 0, 0), V(0, 0, 1), 2.2), False)
sketch17.addGeometry(Part.Circle(V(-8.5, 14.7, 0), V(0, 0, 1), 2.2), False)
sketch17.addGeometry(Part.Circle(V(8.5, 14.7, 0), V(0, 0, 1), 2.2), False)
sketch17.addGeometry(Part.Circle(V(17, 0, 0), V(0, 0, 1), 2.2), False)
sketch17.addGeometry(Part.Circle(V(8.5, -14.7, 0), V(0, 0, 1), 2.2), False)
sketch17.addConstraint(Sketcher.Constraint("Equal", 0, 1))
sketch17.addConstraint(Sketcher.Constraint("Equal", 1, 2))
sketch17.addConstraint(Sketcher.Constraint("Equal", 2, 3))
sketch17.addConstraint(Sketcher.Constraint("Equal", 3, 4))
sketch17.addConstraint(Sketcher.Constraint("Equal", 4, 5))
sketch17.addConstraint(Sketcher.Constraint("Symmetric", 0, 3, 3, 3, -1, 1))
sketch17.addConstraint(Sketcher.Constraint("Symmetric", 1, 3, 4, 3, -1, 1))
sketch17.addConstraint(Sketcher.Constraint("Symmetric", 2, 3, 5, 3, -1, 1))
sketch17.addConstraint(Sketcher.Constraint("Symmetric", 2, 3, 3, 3, -2))
sketch17.addConstraint(Sketcher.Constraint("PointOnObject", 1, 3, -1))
sketch17.addConstraint(Sketcher.Constraint("Diameter", 0, 4.4))
sketch17.addConstraint(Sketcher.Constraint("DistanceX", 1, 3, -1, 1, 17.0))
sketch17.addConstraint(Sketcher.Constraint("DistanceX", 2, 3, 3, 3, 17.0))
sketch17.addConstraint(Sketcher.Constraint("DistanceY", 0, 3, -1, 1, 14.722432))
sketch17.setExpression("Constraints[10]", "Params.sketch17_diameter")
pocket3 = body.newObject("PartDesign::Pocket", "Pocket002")
pocket3.Profile = sketch17
pocket3.setExpression("Length", "Params.pocket3_length")

doc.recompute()
